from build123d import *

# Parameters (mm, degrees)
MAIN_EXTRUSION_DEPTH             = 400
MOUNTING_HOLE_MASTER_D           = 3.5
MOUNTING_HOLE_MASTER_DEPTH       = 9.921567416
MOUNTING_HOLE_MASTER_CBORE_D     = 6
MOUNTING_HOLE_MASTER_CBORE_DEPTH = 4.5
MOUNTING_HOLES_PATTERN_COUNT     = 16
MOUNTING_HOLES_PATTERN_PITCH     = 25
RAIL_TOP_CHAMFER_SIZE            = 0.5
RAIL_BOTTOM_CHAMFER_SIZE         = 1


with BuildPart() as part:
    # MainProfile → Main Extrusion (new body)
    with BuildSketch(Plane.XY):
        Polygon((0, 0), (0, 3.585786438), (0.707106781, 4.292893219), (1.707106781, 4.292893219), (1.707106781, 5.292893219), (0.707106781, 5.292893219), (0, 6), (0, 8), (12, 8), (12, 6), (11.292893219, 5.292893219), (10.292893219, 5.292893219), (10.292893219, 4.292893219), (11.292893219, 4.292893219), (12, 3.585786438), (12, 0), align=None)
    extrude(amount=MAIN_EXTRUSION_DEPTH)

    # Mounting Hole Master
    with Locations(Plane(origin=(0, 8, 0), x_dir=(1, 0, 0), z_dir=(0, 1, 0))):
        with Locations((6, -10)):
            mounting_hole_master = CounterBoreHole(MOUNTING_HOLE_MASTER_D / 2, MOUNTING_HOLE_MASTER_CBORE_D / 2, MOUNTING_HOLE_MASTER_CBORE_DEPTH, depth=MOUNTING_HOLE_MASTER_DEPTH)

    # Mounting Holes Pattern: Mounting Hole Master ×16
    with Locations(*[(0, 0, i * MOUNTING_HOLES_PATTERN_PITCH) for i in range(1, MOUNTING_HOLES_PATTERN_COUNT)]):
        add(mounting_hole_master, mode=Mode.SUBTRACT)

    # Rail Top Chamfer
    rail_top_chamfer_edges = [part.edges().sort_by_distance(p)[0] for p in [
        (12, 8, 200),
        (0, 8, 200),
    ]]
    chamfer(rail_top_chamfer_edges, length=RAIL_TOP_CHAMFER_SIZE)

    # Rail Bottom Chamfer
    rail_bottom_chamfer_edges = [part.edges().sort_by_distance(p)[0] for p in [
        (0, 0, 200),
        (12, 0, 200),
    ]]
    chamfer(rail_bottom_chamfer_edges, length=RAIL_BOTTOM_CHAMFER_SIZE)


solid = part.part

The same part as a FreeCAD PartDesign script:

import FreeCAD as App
import Part
import Sketcher
from FreeCAD import Vector
Q = App.Units.Quantity


def edges_at(feature, points):
    """Names of the edges that pass closest to the given points."""
    edges = feature.Shape.Edges
    near = lambda p: min(range(len(edges)), key=lambda i: edges[i].distToShape(Part.Vertex(*p))[0])
    return sorted({f"Edge{near(p) + 1}" for p in points})

doc = App.newDocument("Part")
body = doc.addObject("PartDesign::Body", "Body")

# Sketch on XY plane
sketch1 = body.newObject("Sketcher::SketchObject", "Sketch")
sketch1.AttachmentSupport = (doc.getObject("XY_Plane"), [""])
sketch1.MapMode = "FlatFace"
sketch1.addGeometry([
    Part.LineSegment(Vector(0, 3.6, 0), Vector(0, 0, 0)),  # 0
    Part.LineSegment(Vector(0, 0, 0), Vector(12, 0, 0)),  # 1
    Part.LineSegment(Vector(12, 0, 0), Vector(12, 3.6, 0)),  # 2
    Part.LineSegment(Vector(12, 3.6, 0), Vector(11.3, 4.3, 0)),  # 3
    Part.LineSegment(Vector(11.3, 4.3, 0), Vector(10.3, 4.3, 0)),  # 4
    Part.LineSegment(Vector(10.3, 4.3, 0), Vector(10.3, 5.3, 0)),  # 5
    Part.LineSegment(Vector(10.3, 5.3, 0), Vector(11.3, 5.3, 0)),  # 6
    Part.LineSegment(Vector(11.3, 5.3, 0), Vector(12, 6, 0)),  # 7
    Part.LineSegment(Vector(12, 6, 0), Vector(12, 8, 0)),  # 8
    Part.LineSegment(Vector(12, 8, 0), Vector(0, 8, 0)),  # 9
    Part.LineSegment(Vector(0, 8, 0), Vector(0, 6, 0)),  # 10
    Part.LineSegment(Vector(0, 6, 0), Vector(0.7, 5.3, 0)),  # 11
    Part.LineSegment(Vector(0.7, 5.3, 0), Vector(1.7, 5.3, 0)),  # 12
    Part.LineSegment(Vector(1.7, 5.3, 0), Vector(1.7, 4.3, 0)),  # 13
    Part.LineSegment(Vector(1.7, 4.3, 0), Vector(0.7, 4.3, 0)),  # 14
    Part.LineSegment(Vector(0.7, 4.3, 0), Vector(0, 3.6, 0)),  # 15
], False)
sketch1.addConstraint([
    Sketcher.Constraint("Coincident", 0, 2, 1, 1),
    Sketcher.Constraint("Coincident", 1, 2, 2, 1),
    Sketcher.Constraint("Coincident", 2, 2, 3, 1),
    Sketcher.Constraint("Coincident", 3, 2, 4, 1),
    Sketcher.Constraint("Coincident", 4, 2, 5, 1),
    Sketcher.Constraint("Coincident", 5, 2, 6, 1),
    Sketcher.Constraint("Coincident", 6, 2, 7, 1),
    Sketcher.Constraint("Coincident", 7, 2, 8, 1),
    Sketcher.Constraint("Coincident", 8, 2, 9, 1),
    Sketcher.Constraint("Coincident", 9, 2, 10, 1),
    Sketcher.Constraint("Coincident", 10, 2, 11, 1),
    Sketcher.Constraint("Coincident", 11, 2, 12, 1),
    Sketcher.Constraint("Coincident", 12, 2, 13, 1),
    Sketcher.Constraint("Coincident", 13, 2, 14, 1),
    Sketcher.Constraint("Coincident", 14, 2, 15, 1),
    Sketcher.Constraint("Coincident", 15, 2, 0, 1),
    Sketcher.Constraint("Vertical", 0),
    Sketcher.Constraint("Horizontal", 1),
    Sketcher.Constraint("Vertical", 2),
    Sketcher.Constraint("Horizontal", 4),
    Sketcher.Constraint("Vertical", 5),
    Sketcher.Constraint("Horizontal", 6),
    Sketcher.Constraint("Vertical", 8),
    Sketcher.Constraint("Horizontal", 9),
    Sketcher.Constraint("Vertical", 10),
    Sketcher.Constraint("Horizontal", 12),
    Sketcher.Constraint("Vertical", 13),
    Sketcher.Constraint("Horizontal", 14),
    Sketcher.Constraint("Coincident", 0, 2, -1, 1),
    Sketcher.Constraint("PointOnObject", 9, 2, -2),
    Sketcher.Constraint("Perpendicular", 3, 7),
    Sketcher.Constraint("Perpendicular", 7, 11),
    Sketcher.Constraint("Perpendicular", 11, 15),
    Sketcher.Constraint("Horizontal", 7, 2, 10, 2),
    Sketcher.Constraint("Horizontal", 6, 2, 11, 2),
    Sketcher.Constraint("Horizontal", 4, 2, 13, 2),
    Sketcher.Constraint("Horizontal", 2, 2, 15, 2),
    Sketcher.Constraint("Vertical", 3, 2, 6, 2),
    Sketcher.Constraint("Vertical", 2, 2, 7, 2),
    Sketcher.Constraint("Vertical", 11, 2, 14, 2),
    Sketcher.Constraint("Equal", 6, 12),
    Sketcher.Constraint("Equal", 14, 5),
    Sketcher.Constraint("DistanceX", 1, 1, 1, 2, Q("12 mm")),
    Sketcher.Constraint("DistanceX", 4, 2, 4, 1, Q("1 mm")),
    Sketcher.Constraint("DistanceY", 8, 1, 8, 2, Q("2 mm")),
    Sketcher.Constraint("Distance", 3, Q("1 mm")),
    Sketcher.Constraint("DistanceY", -1, 1, 7, 2, Q("6 mm")),
])
pad1 = body.newObject("PartDesign::Pad", "Pad")
pad1.Profile = sketch1
pad1.Length = 400

# Sketch on XZ plane
sketch2 = body.newObject("Sketcher::SketchObject", "Sketch001")
sketch2.AttachmentSupport = (doc.getObject("XZ_Plane"), [""])
sketch2.MapMode = "FlatFace"
sketch2.AttachmentOffset = App.Placement(Vector(0, 0, -8), App.Rotation())
sketch2.addGeometry(Part.Circle(Vector(6, 10, 0), Vector(0, 0, 1), 1.8), False)
sketch2.addConstraint([
    Sketcher.Constraint("Diameter", 0, Q("3.5 mm")),
    Sketcher.Constraint("DistanceX", -1, 1, 0, 3, Q("6 mm")),
    Sketcher.Constraint("DistanceY", -1, 1, 0, 3, Q("10 mm")),
])
doc.recompute()
hole = body.newObject("PartDesign::Hole", "Hole")
hole.Profile = sketch2
hole.ThreadType = "None"
hole.Diameter = 3.5
hole.DepthType = "Dimension"
hole.Depth = 9.921567
hole.DrillPoint = "Flat"
hole.HoleCutType = "Counterbore"
hole.HoleCutDiameter = 6
hole.HoleCutDepth = 4.5
hole.Reversed = True
doc.recompute()

linearpattern = body.newObject("PartDesign::LinearPattern", "LinearPattern")
linearpattern.Originals = [hole]
linearpattern.Direction = (doc.getObject("Z_Axis"), [""])
linearpattern.Mode = "offset"
linearpattern.Offset = 25
linearpattern.Occurrences = 16
body.Tip = linearpattern
doc.recompute()

chamfer = body.newObject("PartDesign::Chamfer", "Chamfer")
chamfer.Base = (linearpattern, edges_at(linearpattern, [(12, 8, 200), (0, 8, 200)]))
chamfer.Size = 0.5
doc.recompute()

chamfer2 = body.newObject("PartDesign::Chamfer", "Chamfer001")
chamfer2.Base = (chamfer, edges_at(chamfer, [(0, 0, 200), (12, 0, 200)]))
chamfer2.Size = 1

doc.recompute()
